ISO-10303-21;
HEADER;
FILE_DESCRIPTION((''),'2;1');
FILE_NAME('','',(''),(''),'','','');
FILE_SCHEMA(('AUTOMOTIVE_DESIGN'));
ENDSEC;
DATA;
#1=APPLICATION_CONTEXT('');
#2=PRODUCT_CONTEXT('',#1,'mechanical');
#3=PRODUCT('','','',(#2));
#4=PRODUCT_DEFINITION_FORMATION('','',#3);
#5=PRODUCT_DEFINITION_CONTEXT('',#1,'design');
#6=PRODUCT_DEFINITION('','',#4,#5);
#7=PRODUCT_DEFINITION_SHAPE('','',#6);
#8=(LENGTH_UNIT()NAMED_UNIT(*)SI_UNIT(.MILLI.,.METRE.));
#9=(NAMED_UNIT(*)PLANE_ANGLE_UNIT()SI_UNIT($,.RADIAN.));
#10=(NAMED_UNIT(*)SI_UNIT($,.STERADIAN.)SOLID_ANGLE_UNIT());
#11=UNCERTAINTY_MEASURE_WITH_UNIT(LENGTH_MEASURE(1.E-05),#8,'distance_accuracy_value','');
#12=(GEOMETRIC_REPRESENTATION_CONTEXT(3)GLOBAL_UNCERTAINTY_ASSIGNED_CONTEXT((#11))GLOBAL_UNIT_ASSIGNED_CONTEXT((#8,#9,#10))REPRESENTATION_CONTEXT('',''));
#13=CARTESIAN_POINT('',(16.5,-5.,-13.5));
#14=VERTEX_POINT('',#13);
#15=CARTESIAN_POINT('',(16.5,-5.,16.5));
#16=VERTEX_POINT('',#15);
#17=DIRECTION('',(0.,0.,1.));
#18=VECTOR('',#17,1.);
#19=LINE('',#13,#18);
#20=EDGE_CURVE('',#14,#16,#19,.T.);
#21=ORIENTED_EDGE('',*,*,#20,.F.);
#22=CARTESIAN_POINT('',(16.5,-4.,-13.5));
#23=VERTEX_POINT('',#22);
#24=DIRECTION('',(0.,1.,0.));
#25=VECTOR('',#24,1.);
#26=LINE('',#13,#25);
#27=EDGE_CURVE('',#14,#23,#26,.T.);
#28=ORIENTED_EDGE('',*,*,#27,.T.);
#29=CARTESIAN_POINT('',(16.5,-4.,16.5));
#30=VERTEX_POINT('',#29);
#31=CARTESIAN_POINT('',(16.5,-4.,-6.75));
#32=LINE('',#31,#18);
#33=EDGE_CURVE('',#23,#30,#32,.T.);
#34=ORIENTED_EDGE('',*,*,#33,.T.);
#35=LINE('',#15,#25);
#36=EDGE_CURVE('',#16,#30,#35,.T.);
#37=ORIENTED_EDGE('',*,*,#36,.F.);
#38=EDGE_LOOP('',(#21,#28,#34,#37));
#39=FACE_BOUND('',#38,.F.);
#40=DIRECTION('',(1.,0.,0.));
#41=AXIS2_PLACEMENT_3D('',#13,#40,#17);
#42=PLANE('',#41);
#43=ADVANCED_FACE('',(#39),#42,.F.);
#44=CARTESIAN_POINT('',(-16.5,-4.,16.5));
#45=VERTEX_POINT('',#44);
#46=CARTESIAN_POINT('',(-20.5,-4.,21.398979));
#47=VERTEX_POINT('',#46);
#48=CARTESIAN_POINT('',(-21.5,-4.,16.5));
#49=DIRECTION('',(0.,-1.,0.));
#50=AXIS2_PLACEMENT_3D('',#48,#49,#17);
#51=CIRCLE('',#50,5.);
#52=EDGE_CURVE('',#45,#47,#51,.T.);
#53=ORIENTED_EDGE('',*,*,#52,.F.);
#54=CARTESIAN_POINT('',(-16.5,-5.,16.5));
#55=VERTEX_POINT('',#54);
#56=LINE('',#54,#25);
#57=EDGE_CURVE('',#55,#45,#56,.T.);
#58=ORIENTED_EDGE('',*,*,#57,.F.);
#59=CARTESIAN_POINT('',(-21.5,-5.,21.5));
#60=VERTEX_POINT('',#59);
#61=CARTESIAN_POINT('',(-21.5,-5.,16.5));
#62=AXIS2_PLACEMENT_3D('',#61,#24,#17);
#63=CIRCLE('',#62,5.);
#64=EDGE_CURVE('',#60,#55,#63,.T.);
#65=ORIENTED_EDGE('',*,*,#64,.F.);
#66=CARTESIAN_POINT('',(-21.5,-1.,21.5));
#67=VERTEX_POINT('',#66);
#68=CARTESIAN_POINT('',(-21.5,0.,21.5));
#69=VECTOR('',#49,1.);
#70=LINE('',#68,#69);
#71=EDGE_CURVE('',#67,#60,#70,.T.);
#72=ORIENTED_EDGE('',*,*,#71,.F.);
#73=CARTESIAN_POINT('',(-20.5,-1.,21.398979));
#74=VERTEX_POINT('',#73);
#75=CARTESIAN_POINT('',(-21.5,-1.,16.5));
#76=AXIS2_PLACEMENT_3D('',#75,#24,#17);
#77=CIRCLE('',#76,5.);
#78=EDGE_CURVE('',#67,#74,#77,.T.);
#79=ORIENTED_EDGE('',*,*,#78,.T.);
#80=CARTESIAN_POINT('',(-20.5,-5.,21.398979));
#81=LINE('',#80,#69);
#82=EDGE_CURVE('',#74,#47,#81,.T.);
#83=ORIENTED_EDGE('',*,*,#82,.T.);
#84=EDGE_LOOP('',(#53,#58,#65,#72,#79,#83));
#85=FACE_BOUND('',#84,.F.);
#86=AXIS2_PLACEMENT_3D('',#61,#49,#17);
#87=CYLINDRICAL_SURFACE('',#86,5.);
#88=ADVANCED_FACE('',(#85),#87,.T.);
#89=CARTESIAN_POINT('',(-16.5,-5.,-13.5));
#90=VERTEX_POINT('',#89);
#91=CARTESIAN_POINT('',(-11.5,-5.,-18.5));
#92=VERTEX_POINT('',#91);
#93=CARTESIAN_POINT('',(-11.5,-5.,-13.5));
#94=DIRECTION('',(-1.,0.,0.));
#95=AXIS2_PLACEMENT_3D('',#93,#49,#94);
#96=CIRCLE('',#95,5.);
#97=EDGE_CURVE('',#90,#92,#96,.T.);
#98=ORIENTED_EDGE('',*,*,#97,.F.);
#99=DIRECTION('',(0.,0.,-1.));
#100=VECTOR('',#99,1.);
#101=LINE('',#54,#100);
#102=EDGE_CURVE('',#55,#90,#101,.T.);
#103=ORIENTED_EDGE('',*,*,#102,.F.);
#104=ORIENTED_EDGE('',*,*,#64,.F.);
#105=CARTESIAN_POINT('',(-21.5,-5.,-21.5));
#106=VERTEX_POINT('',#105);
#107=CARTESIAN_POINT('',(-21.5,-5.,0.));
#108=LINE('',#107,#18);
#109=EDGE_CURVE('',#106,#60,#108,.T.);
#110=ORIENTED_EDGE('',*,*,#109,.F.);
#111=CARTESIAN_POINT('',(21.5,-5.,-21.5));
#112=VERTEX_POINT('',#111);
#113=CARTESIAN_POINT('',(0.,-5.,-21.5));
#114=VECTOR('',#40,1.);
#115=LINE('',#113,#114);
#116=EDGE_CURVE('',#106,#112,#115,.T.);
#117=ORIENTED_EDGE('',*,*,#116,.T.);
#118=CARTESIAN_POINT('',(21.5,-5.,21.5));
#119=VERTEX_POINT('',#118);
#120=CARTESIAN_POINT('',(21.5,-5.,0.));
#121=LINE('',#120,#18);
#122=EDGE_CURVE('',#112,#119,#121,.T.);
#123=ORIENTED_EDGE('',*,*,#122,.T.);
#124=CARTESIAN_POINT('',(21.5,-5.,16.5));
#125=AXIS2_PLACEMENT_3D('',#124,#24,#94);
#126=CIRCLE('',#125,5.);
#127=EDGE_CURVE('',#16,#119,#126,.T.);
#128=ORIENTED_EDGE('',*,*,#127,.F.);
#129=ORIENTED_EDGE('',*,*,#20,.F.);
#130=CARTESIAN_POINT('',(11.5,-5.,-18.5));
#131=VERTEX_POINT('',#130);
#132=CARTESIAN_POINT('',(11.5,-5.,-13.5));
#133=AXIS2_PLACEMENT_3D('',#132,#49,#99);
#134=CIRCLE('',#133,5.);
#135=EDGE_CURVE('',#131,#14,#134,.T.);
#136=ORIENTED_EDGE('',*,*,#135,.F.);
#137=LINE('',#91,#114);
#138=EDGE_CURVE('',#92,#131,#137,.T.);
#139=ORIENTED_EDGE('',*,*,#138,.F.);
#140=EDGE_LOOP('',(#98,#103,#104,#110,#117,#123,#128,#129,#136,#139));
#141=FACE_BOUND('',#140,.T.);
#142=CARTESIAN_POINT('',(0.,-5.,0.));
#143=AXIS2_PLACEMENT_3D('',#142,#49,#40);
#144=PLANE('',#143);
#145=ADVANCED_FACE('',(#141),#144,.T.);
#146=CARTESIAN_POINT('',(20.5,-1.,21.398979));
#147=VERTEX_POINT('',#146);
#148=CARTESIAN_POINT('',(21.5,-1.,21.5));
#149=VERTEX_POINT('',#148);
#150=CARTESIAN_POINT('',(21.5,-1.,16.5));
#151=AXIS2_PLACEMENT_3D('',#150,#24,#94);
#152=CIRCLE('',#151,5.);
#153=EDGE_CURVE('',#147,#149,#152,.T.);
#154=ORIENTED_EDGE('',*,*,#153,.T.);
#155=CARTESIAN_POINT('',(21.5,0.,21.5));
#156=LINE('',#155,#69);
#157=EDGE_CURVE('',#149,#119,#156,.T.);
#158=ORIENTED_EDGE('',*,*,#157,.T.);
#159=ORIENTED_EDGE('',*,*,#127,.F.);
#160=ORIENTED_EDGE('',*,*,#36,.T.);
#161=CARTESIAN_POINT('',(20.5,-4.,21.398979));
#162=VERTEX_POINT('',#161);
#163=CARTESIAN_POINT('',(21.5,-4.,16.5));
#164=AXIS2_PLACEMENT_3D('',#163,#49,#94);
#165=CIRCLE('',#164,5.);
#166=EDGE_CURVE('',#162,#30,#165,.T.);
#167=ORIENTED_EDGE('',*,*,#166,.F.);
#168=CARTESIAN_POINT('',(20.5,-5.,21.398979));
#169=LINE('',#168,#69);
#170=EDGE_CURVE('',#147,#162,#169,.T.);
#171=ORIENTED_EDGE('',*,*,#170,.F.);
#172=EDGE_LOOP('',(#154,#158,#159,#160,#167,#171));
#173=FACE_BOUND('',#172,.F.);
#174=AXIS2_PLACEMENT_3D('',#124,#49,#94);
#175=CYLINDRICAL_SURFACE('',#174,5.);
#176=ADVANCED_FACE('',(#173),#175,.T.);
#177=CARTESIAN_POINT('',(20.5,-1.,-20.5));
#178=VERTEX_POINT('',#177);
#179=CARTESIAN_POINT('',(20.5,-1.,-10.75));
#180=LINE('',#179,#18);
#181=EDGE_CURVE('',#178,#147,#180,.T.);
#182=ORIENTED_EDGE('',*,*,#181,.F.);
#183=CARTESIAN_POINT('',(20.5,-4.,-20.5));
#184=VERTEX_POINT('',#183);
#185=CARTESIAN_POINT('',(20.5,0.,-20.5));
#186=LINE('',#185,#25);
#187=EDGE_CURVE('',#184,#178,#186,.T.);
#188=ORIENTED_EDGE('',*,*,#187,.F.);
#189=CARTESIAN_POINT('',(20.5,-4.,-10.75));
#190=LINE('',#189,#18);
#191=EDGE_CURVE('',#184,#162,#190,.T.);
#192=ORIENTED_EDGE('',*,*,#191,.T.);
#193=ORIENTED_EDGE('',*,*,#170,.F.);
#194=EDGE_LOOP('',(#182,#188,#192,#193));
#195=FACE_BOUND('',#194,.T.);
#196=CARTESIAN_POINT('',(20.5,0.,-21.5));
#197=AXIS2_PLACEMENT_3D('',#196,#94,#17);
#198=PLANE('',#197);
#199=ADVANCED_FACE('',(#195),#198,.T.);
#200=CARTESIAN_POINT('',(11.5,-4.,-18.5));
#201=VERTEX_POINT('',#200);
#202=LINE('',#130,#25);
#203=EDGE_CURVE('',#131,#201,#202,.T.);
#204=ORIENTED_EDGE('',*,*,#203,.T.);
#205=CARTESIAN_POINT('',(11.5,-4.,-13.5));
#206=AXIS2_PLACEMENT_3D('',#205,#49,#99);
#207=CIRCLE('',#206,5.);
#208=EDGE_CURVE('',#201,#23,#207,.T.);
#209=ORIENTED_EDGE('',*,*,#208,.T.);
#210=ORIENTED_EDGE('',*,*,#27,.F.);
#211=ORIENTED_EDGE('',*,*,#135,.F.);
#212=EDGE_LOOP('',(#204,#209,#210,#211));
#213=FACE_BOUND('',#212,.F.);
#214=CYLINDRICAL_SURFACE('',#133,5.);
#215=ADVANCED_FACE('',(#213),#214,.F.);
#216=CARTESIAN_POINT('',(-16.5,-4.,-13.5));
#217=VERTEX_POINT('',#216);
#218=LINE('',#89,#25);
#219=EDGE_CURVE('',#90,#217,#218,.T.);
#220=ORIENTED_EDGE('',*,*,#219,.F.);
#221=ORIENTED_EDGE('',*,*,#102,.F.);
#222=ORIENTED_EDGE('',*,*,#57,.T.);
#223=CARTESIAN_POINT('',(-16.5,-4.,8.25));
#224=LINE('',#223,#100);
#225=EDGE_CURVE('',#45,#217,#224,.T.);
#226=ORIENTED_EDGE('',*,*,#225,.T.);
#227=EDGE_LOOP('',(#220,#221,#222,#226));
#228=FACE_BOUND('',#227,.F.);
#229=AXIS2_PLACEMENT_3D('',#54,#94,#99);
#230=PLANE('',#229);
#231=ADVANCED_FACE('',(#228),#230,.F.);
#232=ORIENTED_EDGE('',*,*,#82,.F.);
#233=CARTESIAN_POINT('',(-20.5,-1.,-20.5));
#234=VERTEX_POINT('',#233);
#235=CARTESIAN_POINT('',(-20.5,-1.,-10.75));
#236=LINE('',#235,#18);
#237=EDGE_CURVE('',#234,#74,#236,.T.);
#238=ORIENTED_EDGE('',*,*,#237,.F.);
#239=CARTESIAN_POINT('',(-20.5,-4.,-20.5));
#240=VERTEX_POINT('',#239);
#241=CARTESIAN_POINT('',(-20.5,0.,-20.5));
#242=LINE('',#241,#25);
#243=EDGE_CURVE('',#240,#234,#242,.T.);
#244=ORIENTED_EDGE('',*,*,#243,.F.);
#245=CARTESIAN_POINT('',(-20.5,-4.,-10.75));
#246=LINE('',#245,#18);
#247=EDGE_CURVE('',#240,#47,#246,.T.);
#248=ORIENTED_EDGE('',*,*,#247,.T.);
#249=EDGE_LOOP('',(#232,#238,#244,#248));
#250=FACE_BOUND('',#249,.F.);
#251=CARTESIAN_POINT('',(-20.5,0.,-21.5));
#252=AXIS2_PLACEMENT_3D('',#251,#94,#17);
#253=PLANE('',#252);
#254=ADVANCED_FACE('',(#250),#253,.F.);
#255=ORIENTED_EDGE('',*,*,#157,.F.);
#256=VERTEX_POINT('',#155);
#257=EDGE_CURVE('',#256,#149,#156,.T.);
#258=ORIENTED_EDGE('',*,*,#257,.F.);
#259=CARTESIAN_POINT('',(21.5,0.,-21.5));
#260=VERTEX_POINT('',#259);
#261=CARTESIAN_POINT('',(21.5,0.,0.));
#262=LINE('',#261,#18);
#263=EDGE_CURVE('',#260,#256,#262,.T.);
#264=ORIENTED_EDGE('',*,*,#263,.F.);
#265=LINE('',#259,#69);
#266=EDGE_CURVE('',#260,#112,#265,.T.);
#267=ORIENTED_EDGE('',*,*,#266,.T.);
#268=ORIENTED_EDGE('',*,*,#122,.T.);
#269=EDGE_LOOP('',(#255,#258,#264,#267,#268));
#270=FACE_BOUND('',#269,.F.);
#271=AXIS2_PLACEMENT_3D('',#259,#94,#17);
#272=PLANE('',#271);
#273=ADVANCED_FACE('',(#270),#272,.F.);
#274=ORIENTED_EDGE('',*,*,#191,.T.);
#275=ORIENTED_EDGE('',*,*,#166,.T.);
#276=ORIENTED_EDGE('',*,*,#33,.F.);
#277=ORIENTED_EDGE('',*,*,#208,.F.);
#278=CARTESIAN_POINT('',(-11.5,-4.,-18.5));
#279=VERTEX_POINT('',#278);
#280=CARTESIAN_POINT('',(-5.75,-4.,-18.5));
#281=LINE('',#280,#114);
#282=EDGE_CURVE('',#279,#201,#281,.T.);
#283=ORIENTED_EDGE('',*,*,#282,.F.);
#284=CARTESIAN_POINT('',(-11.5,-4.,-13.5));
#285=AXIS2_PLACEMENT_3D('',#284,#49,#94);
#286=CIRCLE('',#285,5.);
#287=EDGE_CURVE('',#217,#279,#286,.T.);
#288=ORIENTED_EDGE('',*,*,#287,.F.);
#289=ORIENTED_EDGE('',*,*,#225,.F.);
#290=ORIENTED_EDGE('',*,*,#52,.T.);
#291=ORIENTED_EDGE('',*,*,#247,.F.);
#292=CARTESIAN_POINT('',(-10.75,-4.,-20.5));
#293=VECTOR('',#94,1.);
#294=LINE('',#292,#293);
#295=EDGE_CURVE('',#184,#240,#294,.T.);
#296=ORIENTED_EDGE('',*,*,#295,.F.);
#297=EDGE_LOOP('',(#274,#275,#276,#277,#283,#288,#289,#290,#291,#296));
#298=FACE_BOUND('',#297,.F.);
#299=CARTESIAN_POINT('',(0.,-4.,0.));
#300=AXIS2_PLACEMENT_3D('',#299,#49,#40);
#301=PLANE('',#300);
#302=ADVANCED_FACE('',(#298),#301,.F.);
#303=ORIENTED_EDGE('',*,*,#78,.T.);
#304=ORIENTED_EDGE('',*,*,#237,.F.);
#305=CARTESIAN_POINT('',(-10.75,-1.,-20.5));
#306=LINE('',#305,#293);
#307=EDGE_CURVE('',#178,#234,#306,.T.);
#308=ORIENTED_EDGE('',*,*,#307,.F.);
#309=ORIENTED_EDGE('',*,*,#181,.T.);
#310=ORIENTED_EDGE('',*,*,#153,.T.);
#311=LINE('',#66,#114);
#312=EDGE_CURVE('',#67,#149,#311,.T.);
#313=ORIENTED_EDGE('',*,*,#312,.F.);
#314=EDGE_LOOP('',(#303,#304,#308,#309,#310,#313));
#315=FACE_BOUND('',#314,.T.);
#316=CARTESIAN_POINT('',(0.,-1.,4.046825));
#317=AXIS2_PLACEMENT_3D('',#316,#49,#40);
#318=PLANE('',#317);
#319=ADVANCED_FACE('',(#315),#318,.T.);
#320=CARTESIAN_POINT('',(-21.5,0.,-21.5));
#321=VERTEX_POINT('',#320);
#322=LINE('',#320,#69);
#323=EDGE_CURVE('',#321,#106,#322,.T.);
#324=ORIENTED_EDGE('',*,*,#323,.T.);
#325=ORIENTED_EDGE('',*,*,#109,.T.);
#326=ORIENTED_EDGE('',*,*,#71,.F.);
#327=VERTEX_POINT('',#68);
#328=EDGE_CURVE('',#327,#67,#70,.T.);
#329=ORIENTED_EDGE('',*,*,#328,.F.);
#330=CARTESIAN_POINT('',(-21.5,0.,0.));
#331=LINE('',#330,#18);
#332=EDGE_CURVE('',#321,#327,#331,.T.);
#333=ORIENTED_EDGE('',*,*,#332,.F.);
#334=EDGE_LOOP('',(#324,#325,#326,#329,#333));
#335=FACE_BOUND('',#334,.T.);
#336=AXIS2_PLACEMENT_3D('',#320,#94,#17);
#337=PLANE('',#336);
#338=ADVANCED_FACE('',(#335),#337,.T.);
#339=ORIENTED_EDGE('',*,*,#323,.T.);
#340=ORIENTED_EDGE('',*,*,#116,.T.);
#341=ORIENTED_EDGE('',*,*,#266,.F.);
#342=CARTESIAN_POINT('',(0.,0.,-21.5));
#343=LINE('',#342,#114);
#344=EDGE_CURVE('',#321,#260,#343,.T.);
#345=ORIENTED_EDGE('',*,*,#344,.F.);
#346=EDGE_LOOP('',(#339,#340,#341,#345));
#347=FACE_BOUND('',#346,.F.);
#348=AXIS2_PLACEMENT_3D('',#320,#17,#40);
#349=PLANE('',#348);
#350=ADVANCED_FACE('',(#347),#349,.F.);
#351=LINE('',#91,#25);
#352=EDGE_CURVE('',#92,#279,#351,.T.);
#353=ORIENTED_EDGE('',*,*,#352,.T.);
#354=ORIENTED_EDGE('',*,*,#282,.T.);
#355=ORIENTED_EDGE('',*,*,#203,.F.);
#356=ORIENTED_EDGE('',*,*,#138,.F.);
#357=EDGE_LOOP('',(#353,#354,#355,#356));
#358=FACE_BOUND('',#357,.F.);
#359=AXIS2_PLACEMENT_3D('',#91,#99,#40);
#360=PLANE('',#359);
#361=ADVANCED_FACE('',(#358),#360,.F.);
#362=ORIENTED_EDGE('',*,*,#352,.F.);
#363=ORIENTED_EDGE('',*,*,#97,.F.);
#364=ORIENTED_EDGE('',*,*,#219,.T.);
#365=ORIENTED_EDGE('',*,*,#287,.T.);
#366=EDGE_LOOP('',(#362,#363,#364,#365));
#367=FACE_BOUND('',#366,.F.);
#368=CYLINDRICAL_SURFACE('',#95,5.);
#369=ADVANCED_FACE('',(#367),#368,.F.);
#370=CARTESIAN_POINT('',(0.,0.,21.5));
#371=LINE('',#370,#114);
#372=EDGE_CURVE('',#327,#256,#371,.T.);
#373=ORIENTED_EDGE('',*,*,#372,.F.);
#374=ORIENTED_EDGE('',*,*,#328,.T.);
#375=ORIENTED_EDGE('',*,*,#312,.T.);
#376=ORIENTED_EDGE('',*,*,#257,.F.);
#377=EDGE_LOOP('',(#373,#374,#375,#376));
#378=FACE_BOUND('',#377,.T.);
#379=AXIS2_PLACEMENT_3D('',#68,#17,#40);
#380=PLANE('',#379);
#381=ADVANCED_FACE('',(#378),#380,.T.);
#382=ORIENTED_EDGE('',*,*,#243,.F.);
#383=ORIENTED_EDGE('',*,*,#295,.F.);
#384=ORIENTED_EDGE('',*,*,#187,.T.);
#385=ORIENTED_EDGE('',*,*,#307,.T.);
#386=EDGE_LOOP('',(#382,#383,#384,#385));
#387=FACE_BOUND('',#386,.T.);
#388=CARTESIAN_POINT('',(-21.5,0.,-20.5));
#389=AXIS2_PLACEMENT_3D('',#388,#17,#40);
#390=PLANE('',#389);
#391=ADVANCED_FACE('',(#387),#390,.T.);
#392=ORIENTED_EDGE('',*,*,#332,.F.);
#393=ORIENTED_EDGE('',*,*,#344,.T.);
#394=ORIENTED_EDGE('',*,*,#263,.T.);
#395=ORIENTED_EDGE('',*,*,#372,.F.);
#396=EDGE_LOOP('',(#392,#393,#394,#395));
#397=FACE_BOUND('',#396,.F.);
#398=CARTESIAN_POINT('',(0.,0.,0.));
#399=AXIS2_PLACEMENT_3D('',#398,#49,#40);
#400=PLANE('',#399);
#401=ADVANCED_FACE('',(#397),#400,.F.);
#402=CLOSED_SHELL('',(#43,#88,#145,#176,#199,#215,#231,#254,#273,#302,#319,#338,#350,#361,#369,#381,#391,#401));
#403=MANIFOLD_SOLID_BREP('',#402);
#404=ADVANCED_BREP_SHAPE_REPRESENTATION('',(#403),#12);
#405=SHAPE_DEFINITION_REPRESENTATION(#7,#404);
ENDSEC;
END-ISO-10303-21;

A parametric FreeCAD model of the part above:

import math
import FreeCAD as App
import Part
import Sketcher

V = App.Vector
Q = App.Units.Quantity


def faces_at(feature, points):
    """Names of the faces that lie closest to the given points."""
    faces = feature.Shape.Faces
    near = lambda p: min(range(len(faces)), key=lambda i: faces[i].distToShape(Part.Vertex(*p))[0])
    return sorted({f"Face{near(p) + 1}" for p in points})


def add_polygon(sketch, points):
    """Adds a closed chain of lines whose ends are joined by coincident constraints."""
    first, n = sketch.GeometryCount, len(points)
    for a, b in zip(points, points[1:] + points[:1]):
        sketch.addGeometry(Part.LineSegment(App.Vector(*a, 0), App.Vector(*b, 0)), False)
    for i in range(n):
        sketch.addConstraint(Sketcher.Constraint("Coincident", first + i, 2, first + (i + 1) % n, 1))

doc = App.newDocument("Part")
body = doc.addObject("PartDesign::Body", "Body")

sketch1 = body.newObject("Sketcher::SketchObject", "Sketch")
sketch1.AttachmentSupport = (doc.getObject("XZ_Plane"), [""])
sketch1.MapMode = "FlatFace"
add_polygon(sketch1, [(-21.5, 21.5), (-21.5, -21.5), (21.5, -21.5), (21.5, 21.5)])
sketch1.addConstraint([
    Sketcher.Constraint("Vertical", 0),
    Sketcher.Constraint("Horizontal", 1),
    Sketcher.Constraint("Vertical", 2),
    Sketcher.Constraint("Horizontal", 3),
    Sketcher.Constraint("Symmetric", 0, 2, 2, 2, -1, 1),
    Sketcher.Constraint("Equal", 3, 0),
    Sketcher.Constraint("DistanceX", 1, 1, 1, 2, Q("43 mm")),
])
pad1 = body.newObject("PartDesign::Pad", "Pad")
pad1.Profile = sketch1
pad1.Length = 5
doc.recompute()

thickness = body.newObject("PartDesign::Thickness", "Thickness")
thickness.Base = (pad1, faces_at(pad1, [(0, -2.5, 21.5)]))
thickness.Value = 1
thickness.Reversed = True
thickness.Join = "Arc"

sketch2 = body.newObject("Sketcher::SketchObject", "Sketch001")
sketch2.AttachmentSupport = (doc.getObject("XZ_Plane"), [""])
sketch2.MapMode = "FlatFace"
sketch2.AttachmentOffset = App.Placement(V(0, 0, 5), App.Rotation())
sketch2.addGeometry([
    Part.ArcOfCircle(Part.Circle(V(-21.5, 16.5, 0), V(0, 0, 1), 5), math.radians(0), math.radians(90)),
    Part.LineSegment(V(-16.5, 16.5, 0), V(-16.5, -13.5, 0)),
    Part.ArcOfCircle(Part.Circle(V(-11.5, -13.5, 0), V(0, 0, 1), 5), math.radians(180), math.radians(270)),
    Part.LineSegment(V(-11.5, -18.5, 0), V(11.5, -18.5, 0)),
    Part.ArcOfCircle(Part.Circle(V(11.5, -13.5, 0), V(0, 0, 1), 5), math.radians(-90), math.radians(0)),
    Part.LineSegment(V(16.5, -13.5, 0), V(16.5, 16.5, 0)),
    Part.ArcOfCircle(Part.Circle(V(21.5, 16.5, 0), V(0, 0, 1), 5), math.radians(90), math.radians(180)),
    Part.LineSegment(V(21.5, 21.5, 0), V(-21.5, 21.5, 0)),
], False)
sketch2.addConstraint([
    Sketcher.Constraint("Tangent", 0, 1, 1, 1),
    Sketcher.Constraint("Tangent", 1, 2, 2, 1),
    Sketcher.Constraint("Tangent", 2, 2, 3, 1),
    Sketcher.Constraint("Tangent", 3, 2, 4, 1),
    Sketcher.Constraint("Tangent", 4, 2, 5, 1),
    Sketcher.Constraint("Tangent", 5, 2, 6, 2),
    Sketcher.Constraint("Tangent", 6, 1, 7, 1),
    Sketcher.Constraint("Tangent", 7, 2, 0, 2),
    Sketcher.Constraint("Vertical", 1),
    Sketcher.Constraint("Horizontal", 3),
    Sketcher.Constraint("Vertical", 5),
    Sketcher.Constraint("Horizontal", 7),
    Sketcher.Constraint("Equal", 0, 2),
    Sketcher.Constraint("Equal", 2, 4),
    Sketcher.Constraint("Equal", 4, 6),
    Sketcher.Constraint("Radius", 0, Q("5 mm")),
    Sketcher.Constraint("DistanceX", 3, 1, 3, 2, Q("23 mm")),
    Sketcher.Constraint("DistanceY", 1, 2, 1, 1, Q("30 mm")),
    Sketcher.Constraint("DistanceX", 0, 3, -1, 1, Q("21.5 mm")),
    Sketcher.Constraint("DistanceY", -1, 1, 0, 3, Q("16.5 mm")),
])
pocket1 = body.newObject("PartDesign::Pocket", "Pocket")
pocket1.Profile = sketch2
pocket1.Length = 4

doc.recompute()
